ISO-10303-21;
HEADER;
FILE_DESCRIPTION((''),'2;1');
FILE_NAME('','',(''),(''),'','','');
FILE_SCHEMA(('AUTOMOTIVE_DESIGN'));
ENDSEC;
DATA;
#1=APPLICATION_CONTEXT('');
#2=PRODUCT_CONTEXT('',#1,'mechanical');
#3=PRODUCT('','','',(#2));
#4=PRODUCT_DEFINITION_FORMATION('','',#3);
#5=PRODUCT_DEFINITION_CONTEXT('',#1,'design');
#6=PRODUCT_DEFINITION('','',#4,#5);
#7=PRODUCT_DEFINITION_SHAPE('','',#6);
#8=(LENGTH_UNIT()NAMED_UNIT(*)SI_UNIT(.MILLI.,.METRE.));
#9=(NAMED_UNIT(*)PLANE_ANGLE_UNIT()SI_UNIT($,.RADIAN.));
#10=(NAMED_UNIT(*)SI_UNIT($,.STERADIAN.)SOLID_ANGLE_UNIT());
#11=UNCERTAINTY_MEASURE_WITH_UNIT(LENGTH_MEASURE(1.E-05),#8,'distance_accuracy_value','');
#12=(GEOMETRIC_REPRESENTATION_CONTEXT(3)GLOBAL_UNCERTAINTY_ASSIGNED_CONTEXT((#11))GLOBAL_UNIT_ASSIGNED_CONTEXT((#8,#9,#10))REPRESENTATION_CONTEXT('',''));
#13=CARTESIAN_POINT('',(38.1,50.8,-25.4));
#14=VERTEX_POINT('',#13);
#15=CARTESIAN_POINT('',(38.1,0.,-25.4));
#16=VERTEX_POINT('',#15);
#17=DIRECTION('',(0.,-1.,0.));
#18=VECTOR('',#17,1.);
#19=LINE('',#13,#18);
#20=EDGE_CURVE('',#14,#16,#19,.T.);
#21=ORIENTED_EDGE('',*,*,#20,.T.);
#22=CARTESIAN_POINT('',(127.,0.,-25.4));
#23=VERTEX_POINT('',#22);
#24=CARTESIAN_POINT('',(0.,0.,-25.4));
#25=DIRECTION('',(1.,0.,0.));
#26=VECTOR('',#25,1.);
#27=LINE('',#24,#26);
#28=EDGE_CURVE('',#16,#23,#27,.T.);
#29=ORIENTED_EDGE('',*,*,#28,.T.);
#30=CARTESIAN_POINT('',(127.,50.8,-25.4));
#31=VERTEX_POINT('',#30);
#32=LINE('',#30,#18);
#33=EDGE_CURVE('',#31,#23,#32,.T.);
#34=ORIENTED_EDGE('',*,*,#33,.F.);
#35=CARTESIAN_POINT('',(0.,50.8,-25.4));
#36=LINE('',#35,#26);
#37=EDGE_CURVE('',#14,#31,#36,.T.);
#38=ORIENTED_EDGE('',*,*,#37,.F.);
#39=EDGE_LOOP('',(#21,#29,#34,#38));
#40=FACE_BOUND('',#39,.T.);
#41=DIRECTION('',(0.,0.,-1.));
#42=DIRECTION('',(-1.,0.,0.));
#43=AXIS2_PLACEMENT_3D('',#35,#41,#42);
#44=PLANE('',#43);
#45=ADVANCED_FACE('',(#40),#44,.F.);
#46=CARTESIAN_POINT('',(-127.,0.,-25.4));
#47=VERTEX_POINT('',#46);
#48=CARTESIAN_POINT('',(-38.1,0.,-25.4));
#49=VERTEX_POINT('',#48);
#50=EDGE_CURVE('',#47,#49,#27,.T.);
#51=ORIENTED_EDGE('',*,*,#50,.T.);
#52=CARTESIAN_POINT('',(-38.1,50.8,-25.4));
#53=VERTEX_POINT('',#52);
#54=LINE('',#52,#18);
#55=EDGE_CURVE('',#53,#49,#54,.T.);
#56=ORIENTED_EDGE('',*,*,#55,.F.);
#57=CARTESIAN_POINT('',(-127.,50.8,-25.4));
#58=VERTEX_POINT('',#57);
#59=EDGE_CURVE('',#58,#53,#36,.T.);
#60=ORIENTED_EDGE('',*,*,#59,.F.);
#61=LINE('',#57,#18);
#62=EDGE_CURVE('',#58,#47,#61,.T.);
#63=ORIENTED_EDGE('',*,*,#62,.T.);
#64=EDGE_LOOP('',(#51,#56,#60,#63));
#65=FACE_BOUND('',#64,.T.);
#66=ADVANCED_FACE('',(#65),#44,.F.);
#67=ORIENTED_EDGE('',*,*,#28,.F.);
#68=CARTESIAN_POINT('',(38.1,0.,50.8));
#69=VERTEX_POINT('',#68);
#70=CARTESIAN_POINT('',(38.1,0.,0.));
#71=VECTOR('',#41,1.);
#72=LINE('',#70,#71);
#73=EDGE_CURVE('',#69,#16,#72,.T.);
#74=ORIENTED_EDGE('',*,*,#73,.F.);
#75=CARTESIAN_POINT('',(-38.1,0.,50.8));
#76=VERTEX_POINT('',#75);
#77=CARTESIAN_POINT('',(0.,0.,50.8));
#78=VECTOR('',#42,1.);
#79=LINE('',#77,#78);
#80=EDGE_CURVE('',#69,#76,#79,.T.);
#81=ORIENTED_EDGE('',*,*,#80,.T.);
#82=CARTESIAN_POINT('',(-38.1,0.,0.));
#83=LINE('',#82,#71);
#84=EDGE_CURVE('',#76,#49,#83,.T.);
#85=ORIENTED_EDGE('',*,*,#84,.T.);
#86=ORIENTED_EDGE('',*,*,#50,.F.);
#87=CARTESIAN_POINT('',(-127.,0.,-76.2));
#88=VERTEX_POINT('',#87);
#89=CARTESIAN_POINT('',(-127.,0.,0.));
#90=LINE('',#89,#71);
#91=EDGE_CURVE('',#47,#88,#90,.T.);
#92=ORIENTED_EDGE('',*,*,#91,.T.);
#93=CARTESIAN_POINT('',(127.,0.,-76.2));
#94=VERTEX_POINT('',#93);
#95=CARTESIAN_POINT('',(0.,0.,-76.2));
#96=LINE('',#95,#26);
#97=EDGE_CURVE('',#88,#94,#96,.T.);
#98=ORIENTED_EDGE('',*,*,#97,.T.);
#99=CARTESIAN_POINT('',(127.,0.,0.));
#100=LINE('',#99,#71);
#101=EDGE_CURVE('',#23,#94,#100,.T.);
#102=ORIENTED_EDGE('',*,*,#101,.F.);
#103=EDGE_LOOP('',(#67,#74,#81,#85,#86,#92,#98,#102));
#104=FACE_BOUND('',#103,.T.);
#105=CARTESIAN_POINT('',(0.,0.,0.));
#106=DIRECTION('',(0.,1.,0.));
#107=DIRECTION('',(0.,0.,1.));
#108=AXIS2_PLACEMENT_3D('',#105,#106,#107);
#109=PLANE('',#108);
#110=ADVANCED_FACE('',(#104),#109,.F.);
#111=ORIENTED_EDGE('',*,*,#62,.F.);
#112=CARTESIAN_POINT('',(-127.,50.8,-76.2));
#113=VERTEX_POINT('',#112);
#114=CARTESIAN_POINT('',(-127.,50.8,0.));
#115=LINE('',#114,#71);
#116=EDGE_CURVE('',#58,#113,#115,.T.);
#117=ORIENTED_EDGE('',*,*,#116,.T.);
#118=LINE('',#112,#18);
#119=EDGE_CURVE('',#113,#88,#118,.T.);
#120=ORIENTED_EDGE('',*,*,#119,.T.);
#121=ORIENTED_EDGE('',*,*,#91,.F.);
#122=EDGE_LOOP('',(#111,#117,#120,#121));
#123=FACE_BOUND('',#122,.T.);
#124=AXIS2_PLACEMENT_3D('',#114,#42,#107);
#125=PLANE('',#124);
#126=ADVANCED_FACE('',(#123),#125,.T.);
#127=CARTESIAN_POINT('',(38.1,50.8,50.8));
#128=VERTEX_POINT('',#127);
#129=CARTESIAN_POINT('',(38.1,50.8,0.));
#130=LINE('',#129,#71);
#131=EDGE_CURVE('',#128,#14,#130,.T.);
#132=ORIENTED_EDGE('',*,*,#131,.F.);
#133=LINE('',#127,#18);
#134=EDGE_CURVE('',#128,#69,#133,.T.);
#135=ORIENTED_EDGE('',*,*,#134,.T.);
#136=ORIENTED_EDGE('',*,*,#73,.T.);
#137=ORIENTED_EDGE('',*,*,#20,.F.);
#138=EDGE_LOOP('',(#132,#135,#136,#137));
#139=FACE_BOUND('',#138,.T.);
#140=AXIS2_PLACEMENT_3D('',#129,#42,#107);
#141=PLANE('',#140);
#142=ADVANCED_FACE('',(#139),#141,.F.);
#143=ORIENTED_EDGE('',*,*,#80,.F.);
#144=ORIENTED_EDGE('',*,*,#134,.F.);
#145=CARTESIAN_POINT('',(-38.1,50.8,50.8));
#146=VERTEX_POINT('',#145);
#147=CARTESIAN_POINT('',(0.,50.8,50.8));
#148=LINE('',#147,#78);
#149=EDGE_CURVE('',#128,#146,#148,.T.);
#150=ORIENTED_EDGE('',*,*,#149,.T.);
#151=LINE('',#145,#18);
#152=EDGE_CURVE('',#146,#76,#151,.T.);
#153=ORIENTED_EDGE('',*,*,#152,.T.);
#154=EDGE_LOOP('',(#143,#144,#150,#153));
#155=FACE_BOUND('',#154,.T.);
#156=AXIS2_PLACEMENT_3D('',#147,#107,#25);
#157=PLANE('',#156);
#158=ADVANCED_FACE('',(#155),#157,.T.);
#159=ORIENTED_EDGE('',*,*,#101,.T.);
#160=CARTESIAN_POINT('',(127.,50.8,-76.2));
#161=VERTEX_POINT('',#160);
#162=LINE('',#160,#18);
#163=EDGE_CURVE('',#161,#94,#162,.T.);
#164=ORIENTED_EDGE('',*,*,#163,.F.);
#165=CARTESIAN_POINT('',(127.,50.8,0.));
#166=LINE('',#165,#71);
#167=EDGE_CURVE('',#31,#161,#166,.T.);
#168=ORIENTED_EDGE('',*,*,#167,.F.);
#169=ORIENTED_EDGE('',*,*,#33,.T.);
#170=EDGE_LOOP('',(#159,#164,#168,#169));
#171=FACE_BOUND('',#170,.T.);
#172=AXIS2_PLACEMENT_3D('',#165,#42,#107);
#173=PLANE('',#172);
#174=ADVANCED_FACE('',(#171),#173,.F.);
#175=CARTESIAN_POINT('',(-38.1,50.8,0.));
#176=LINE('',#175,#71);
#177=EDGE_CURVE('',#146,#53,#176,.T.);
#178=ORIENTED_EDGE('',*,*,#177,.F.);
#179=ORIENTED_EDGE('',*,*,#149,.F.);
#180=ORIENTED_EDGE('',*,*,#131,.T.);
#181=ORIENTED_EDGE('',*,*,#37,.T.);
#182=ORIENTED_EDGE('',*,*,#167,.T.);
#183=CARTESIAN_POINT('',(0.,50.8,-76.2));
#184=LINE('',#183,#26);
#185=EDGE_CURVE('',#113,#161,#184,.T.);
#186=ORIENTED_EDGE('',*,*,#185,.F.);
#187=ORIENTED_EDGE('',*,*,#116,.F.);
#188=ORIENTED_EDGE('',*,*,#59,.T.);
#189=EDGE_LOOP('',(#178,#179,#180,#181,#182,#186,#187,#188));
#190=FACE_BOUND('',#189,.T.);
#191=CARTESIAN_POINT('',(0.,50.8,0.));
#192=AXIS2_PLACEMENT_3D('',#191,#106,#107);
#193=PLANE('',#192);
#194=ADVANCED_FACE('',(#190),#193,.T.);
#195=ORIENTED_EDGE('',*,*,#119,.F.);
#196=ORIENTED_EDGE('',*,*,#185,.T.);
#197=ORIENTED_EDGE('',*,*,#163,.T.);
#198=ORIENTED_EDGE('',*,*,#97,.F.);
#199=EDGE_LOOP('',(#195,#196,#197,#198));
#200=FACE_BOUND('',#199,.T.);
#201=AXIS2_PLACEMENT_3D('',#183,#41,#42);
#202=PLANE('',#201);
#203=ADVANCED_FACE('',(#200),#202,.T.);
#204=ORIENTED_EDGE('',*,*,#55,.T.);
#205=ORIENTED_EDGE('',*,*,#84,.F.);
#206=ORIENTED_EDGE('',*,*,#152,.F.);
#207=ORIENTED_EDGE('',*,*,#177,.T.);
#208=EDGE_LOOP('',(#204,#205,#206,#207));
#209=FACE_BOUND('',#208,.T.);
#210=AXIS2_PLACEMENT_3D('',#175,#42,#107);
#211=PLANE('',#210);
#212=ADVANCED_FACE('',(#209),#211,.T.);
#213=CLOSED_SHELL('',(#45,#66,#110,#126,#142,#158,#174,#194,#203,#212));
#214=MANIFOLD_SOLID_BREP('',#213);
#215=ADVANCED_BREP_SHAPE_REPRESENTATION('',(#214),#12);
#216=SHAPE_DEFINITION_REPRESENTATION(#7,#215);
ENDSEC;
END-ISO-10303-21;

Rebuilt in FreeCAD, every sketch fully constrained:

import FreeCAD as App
import Part
import Sketcher
Q = App.Units.Quantity

doc = App.newDocument("Part")
body = doc.addObject("PartDesign::Body", "Body")

# Sketch on XZ plane
sketch1 = body.newObject("Sketcher::SketchObject", "Sketch")
sketch1.AttachmentSupport = (doc.getObject("XZ_Plane"), [""])
sketch1.MapMode = "FlatFace"
sketch1.addGeometry(Part.LineSegment(App.Vector(38, -25, 0), App.Vector(127, -25, 0)), False)
sketch1.addGeometry(Part.LineSegment(App.Vector(127, -25, 0), App.Vector(127, -76, 0)), False)
sketch1.addGeometry(Part.LineSegment(App.Vector(127, -76, 0), App.Vector(-127, -76, 0)), False)
sketch1.addGeometry(Part.LineSegment(App.Vector(-127, -76, 0), App.Vector(-127, -25, 0)), False)
sketch1.addGeometry(Part.LineSegment(App.Vector(-127, -25, 0), App.Vector(-38, -25, 0)), False)
sketch1.addGeometry(Part.LineSegment(App.Vector(-38, -25, 0), App.Vector(-38, 51, 0)), False)
sketch1.addGeometry(Part.LineSegment(App.Vector(-38, 51, 0), App.Vector(38, 51, 0)), False)
sketch1.addGeometry(Part.LineSegment(App.Vector(38, 51, 0), App.Vector(38, -25, 0)), False)
sketch1.addConstraint(Sketcher.Constraint("Coincident", 0, 2, 1, 1))
sketch1.addConstraint(Sketcher.Constraint("Coincident", 1, 2, 2, 1))
sketch1.addConstraint(Sketcher.Constraint("Coincident", 2, 2, 3, 1))
sketch1.addConstraint(Sketcher.Constraint("Coincident", 3, 2, 4, 1))
sketch1.addConstraint(Sketcher.Constraint("Coincident", 4, 2, 5, 1))
sketch1.addConstraint(Sketcher.Constraint("Coincident", 5, 2, 6, 1))
sketch1.addConstraint(Sketcher.Constraint("Coincident", 6, 2, 7, 1))
sketch1.addConstraint(Sketcher.Constraint("Coincident", 7, 2, 0, 1))
sketch1.addConstraint(Sketcher.Constraint("Horizontal", 0))
sketch1.addConstraint(Sketcher.Constraint("Vertical", 1))
sketch1.addConstraint(Sketcher.Constraint("Horizontal", 2))
sketch1.addConstraint(Sketcher.Constraint("Vertical", 3))
sketch1.addConstraint(Sketcher.Constraint("Horizontal", 4))
sketch1.addConstraint(Sketcher.Constraint("Vertical", 5))
sketch1.addConstraint(Sketcher.Constraint("Horizontal", 6))
sketch1.addConstraint(Sketcher.Constraint("Vertical", 7))
sketch1.addConstraint(Sketcher.Constraint("Symmetric", 0, 2, 3, 2, -2))
sketch1.addConstraint(Sketcher.Constraint("Equal", 0, 4))
sketch1.addConstraint(Sketcher.Constraint("Equal", 6, 5))
sketch1.addConstraint(Sketcher.Constraint("DistanceX", 2, 2, 2, 1, Q("10 in")))
sketch1.addConstraint(Sketcher.Constraint("DistanceX", 6, 1, 6, 2, Q("3 in")))
sketch1.addConstraint(Sketcher.Constraint("DistanceY", 1, 2, 1, 1, Q("2 in")))
sketch1.addConstraint(Sketcher.Constraint("DistanceY", 0, 2, -1, 1, Q("1 in")))
pad1 = body.newObject("PartDesign::Pad", "Pad")
pad1.Profile = sketch1
pad1.Length = Q("2 in")
pad1.Reversed = True

doc.recompute()
